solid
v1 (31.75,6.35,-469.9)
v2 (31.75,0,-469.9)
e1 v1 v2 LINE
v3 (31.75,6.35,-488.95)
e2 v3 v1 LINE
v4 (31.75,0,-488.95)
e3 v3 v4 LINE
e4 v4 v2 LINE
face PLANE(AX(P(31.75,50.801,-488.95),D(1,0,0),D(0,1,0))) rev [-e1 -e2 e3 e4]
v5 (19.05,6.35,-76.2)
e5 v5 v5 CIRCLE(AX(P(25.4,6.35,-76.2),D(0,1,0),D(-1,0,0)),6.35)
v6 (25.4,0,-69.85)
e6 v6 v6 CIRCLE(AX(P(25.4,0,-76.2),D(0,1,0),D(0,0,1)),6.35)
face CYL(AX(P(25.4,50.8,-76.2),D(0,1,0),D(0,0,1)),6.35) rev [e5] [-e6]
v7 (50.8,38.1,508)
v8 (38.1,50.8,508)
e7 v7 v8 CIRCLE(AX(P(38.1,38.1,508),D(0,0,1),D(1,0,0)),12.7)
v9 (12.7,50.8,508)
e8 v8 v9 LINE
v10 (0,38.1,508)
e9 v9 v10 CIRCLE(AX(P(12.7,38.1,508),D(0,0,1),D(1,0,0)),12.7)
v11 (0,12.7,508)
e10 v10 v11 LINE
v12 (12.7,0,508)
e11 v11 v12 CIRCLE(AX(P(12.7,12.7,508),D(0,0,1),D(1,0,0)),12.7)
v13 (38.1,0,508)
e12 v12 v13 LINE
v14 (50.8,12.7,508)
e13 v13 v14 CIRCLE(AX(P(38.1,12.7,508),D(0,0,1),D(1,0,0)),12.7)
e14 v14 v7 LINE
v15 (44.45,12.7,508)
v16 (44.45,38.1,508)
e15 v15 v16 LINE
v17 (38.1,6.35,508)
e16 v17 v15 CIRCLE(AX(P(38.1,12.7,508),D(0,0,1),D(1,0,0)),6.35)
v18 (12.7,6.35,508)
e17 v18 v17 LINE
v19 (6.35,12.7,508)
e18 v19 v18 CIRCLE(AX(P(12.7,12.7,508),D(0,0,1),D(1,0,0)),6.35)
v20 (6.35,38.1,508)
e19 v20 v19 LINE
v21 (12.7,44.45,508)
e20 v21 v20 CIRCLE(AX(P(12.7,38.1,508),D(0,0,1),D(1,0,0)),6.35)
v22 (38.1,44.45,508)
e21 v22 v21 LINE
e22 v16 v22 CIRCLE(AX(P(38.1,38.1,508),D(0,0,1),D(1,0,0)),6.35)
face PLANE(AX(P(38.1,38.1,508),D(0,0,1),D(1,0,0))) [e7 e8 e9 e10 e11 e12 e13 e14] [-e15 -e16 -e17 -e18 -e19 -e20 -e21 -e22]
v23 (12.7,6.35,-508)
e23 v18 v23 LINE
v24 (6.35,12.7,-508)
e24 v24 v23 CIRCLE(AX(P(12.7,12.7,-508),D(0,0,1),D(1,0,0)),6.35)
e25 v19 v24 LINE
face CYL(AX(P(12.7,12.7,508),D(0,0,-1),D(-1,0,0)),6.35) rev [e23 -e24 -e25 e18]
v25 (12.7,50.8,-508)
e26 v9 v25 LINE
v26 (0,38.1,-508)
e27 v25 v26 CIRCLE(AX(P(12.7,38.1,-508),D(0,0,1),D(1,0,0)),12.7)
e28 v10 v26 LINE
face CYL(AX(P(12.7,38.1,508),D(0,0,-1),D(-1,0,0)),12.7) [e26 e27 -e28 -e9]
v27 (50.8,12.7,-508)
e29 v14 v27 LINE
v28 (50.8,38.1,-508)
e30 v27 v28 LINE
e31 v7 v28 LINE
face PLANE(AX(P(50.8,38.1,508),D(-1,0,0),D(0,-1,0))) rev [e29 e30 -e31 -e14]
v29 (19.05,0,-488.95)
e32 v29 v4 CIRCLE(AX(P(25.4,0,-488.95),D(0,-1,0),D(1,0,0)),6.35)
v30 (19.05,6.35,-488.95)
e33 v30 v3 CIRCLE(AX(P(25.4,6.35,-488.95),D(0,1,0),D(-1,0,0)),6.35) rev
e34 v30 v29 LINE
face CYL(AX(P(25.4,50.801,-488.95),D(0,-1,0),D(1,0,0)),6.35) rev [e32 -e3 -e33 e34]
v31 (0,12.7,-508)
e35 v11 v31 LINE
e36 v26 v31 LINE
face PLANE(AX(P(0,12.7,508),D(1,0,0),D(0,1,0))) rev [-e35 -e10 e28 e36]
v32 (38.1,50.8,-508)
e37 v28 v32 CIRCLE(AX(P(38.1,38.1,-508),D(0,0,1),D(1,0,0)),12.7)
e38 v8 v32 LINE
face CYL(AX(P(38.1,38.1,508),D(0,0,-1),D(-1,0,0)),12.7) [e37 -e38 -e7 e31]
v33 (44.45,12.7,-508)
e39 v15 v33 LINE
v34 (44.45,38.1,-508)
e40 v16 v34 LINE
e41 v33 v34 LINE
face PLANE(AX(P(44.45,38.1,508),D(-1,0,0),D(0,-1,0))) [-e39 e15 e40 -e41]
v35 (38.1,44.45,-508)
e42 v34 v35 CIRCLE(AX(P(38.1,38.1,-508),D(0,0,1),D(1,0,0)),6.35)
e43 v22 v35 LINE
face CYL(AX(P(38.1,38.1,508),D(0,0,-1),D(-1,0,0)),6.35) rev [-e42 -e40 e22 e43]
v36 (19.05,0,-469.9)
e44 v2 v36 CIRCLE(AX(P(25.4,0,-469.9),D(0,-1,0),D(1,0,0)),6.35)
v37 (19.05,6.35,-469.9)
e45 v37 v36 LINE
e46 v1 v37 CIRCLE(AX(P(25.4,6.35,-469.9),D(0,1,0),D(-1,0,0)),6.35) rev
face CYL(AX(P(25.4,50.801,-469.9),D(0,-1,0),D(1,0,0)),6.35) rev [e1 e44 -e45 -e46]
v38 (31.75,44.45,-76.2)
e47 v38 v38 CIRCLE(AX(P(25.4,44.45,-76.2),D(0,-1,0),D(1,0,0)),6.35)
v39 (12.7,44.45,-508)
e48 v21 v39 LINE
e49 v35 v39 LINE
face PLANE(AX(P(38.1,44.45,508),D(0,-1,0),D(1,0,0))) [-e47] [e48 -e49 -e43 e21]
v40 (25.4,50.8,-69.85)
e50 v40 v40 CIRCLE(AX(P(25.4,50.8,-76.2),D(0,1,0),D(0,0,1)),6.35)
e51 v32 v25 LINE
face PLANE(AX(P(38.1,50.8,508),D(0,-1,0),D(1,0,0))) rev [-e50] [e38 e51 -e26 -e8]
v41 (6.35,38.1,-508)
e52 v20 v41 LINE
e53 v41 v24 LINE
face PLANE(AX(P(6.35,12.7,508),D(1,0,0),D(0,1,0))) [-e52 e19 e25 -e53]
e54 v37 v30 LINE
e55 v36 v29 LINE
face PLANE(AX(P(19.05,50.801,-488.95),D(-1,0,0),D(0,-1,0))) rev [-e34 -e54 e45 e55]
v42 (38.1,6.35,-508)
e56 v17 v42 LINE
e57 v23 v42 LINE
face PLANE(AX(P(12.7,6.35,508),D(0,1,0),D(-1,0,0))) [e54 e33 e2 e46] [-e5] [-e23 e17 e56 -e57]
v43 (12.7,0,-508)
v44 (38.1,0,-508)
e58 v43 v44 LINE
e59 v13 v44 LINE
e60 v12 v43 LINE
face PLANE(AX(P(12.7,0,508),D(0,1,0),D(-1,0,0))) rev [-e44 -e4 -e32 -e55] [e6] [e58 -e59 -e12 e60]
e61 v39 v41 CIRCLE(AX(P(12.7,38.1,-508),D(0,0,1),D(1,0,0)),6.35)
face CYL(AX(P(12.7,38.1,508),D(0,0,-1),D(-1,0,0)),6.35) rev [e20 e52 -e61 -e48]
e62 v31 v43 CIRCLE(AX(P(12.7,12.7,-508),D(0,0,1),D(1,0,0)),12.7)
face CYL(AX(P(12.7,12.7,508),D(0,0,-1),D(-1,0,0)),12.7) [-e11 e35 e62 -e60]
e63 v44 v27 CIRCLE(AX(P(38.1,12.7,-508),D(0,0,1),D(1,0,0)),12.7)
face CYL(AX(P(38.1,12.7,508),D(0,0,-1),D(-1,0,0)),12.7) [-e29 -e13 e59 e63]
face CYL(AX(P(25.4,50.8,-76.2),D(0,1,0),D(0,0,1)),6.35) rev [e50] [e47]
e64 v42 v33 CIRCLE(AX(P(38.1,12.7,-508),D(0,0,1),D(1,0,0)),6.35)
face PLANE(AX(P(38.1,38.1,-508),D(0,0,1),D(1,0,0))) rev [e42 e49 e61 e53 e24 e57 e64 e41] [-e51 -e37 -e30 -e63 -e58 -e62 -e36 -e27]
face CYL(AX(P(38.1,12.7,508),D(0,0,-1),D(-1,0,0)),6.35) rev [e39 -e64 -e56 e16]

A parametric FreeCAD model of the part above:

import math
import FreeCAD as App
import Part
import Sketcher

V = App.Vector
Q = App.Units.Quantity

doc = App.newDocument("Part")
body = doc.addObject("PartDesign::Body", "Body")

# Sketch on XY plane
sketch1 = body.newObject("Sketcher::SketchObject", "Sketch")
sketch1.AttachmentSupport = (doc.getObject("XY_Plane"), [""])
sketch1.MapMode = "FlatFace"
sketch1.addGeometry(Part.LineSegment(V(12.7, 0, 0), V(38.1, 0, 0)), False)
sketch1.addGeometry(Part.ArcOfCircle(Part.Circle(V(38.1, 12.7, 0), V(0, 0, 1), 12.7), math.radians(-90), math.radians(0)), False)
sketch1.addGeometry(Part.LineSegment(V(50.8, 12.7, 0), V(50.8, 38.1, 0)), False)
sketch1.addGeometry(Part.ArcOfCircle(Part.Circle(V(38.1, 38.1, 0), V(0, 0, 1), 12.7), math.radians(0), math.radians(90)), False)
sketch1.addGeometry(Part.LineSegment(V(38.1, 50.8, 0), V(12.7, 50.8, 0)), False)
sketch1.addGeometry(Part.ArcOfCircle(Part.Circle(V(12.7, 38.1, 0), V(0, 0, 1), 12.7), math.radians(90), math.radians(180)), False)
sketch1.addGeometry(Part.LineSegment(V(0, 38.1, 0), V(0, 12.7, 0)), False)
sketch1.addGeometry(Part.ArcOfCircle(Part.Circle(V(12.7, 12.7, 0), V(0, 0, 1), 12.7), math.radians(180), math.radians(270)), False)
sketch1.addGeometry(Part.LineSegment(V(38.1, 6.35, 0), V(12.7, 6.35, 0)), False)
sketch1.addGeometry(Part.ArcOfCircle(Part.Circle(V(12.7, 12.7, 0), V(0, 0, 1), 6.35), math.radians(180), math.radians(270)), False)
sketch1.addGeometry(Part.LineSegment(V(6.35, 12.7, 0), V(6.35, 38.1, 0)), False)
sketch1.addGeometry(Part.ArcOfCircle(Part.Circle(V(12.7, 38.1, 0), V(0, 0, 1), 6.35), math.radians(90), math.radians(180)), False)
sketch1.addGeometry(Part.LineSegment(V(12.7, 44.45, 0), V(38.1, 44.45, 0)), False)
sketch1.addGeometry(Part.ArcOfCircle(Part.Circle(V(38.1, 38.1, 0), V(0, 0, 1), 6.35), math.radians(0), math.radians(90)), False)
sketch1.addGeometry(Part.LineSegment(V(44.45, 38.1, 0), V(44.45, 12.7, 0)), False)
sketch1.addGeometry(Part.ArcOfCircle(Part.Circle(V(38.1, 12.7, 0), V(0, 0, 1), 6.35), math.radians(-90), math.radians(0)), False)
sketch1.addConstraint(Sketcher.Constraint("Tangent", 0, 2, 1, 1))
sketch1.addConstraint(Sketcher.Constraint("Tangent", 1, 2, 2, 1))
sketch1.addConstraint(Sketcher.Constraint("Tangent", 2, 2, 3, 1))
sketch1.addConstraint(Sketcher.Constraint("Tangent", 3, 2, 4, 1))
sketch1.addConstraint(Sketcher.Constraint("Tangent", 4, 2, 5, 1))
sketch1.addConstraint(Sketcher.Constraint("Tangent", 5, 2, 6, 1))
sketch1.addConstraint(Sketcher.Constraint("Tangent", 6, 2, 7, 1))
sketch1.addConstraint(Sketcher.Constraint("Tangent", 7, 2, 0, 1))
sketch1.addConstraint(Sketcher.Constraint("Tangent", 8, 2, 9, 2))
sketch1.addConstraint(Sketcher.Constraint("Tangent", 9, 1, 10, 1))
sketch1.addConstraint(Sketcher.Constraint("Tangent", 10, 2, 11, 2))
sketch1.addConstraint(Sketcher.Constraint("Tangent", 11, 1, 12, 1))
sketch1.addConstraint(Sketcher.Constraint("Tangent", 12, 2, 13, 2))
sketch1.addConstraint(Sketcher.Constraint("Tangent", 13, 1, 14, 1))
sketch1.addConstraint(Sketcher.Constraint("Tangent", 14, 2, 15, 2))
sketch1.addConstraint(Sketcher.Constraint("Tangent", 15, 1, 8, 1))
sketch1.addConstraint(Sketcher.Constraint("Horizontal", 0))
sketch1.addConstraint(Sketcher.Constraint("Vertical", 2))
sketch1.addConstraint(Sketcher.Constraint("Horizontal", 4))
sketch1.addConstraint(Sketcher.Constraint("Vertical", 6))
sketch1.addConstraint(Sketcher.Constraint("Horizontal", 8))
sketch1.addConstraint(Sketcher.Constraint("Vertical", 10))
sketch1.addConstraint(Sketcher.Constraint("Horizontal", 12))
sketch1.addConstraint(Sketcher.Constraint("Vertical", 14))
sketch1.addConstraint(Sketcher.Constraint("Coincident", 9, 3, 7, 3))
sketch1.addConstraint(Sketcher.Constraint("Coincident", 11, 3, 5, 3))
sketch1.addConstraint(Sketcher.Constraint("Coincident", 13, 3, 3, 3))
sketch1.addConstraint(Sketcher.Constraint("Equal", 1, 3))
sketch1.addConstraint(Sketcher.Constraint("Equal", 3, 5))
sketch1.addConstraint(Sketcher.Constraint("Equal", 5, 7))
sketch1.addConstraint(Sketcher.Constraint("Equal", 13, 15))
sketch1.addConstraint(Sketcher.Constraint("PointOnObject", 0, 2, -1))
sketch1.addConstraint(Sketcher.Constraint("PointOnObject", 5, 2, -2))
sketch1.addConstraint(Sketcher.Constraint("Equal", 12, 2))
sketch1.addConstraint(Sketcher.Constraint("Radius", 1, Q("0.5 in")))
sketch1.addConstraint(Sketcher.Constraint("DistanceX", 0, 1, 0, 2, Q("1 in")))
sketch1.addConstraint(Sketcher.Constraint("Radius", 9, Q("0.25 in")))
pad1 = body.newObject("PartDesign::Pad", "Pad")
pad1.Profile = sketch1
pad1.Length = Q("40 in")
pad1.Midplane = True

# Sketch on XZ plane
sketch2 = body.newObject("Sketcher::SketchObject", "Sketch001")
sketch2.AttachmentSupport = (doc.getObject("XZ_Plane"), [""])
sketch2.MapMode = "FlatFace"
sketch2.AttachmentOffset = App.Placement(V(0, 0, -2 * 25.4), App.Rotation())
sketch2.addGeometry(Part.Circle(V(25.4, -76.2, 0), V(0, 0, 1), 6.35), False)
sketch2.addConstraint(Sketcher.Constraint("Diameter", 0, Q("0.5 in")))
sketch2.addConstraint(Sketcher.Constraint("DistanceX", -1, 1, 0, 3, Q("1 in")))
sketch2.addConstraint(Sketcher.Constraint("DistanceY", 0, 3, -1, 1, Q("3 in")))
doc.recompute()
hole = body.newObject("PartDesign::Hole", "Hole")
hole.Profile = sketch2
hole.ThreadType = "None"
hole.Diameter = Q("0.5 in")
hole.DepthType = "ThroughAll"
hole.Reversed = True

# Sketch on XZ plane
sketch3 = body.newObject("Sketcher::SketchObject", "Sketch002")
sketch3.AttachmentSupport = (doc.getObject("XZ_Plane"), [""])
sketch3.MapMode = "FlatFace"
sketch3.addGeometry(Part.LineSegment(V(19.05, -469.9, 0), V(19.05, -488.95, 0)), False)
sketch3.addGeometry(Part.ArcOfCircle(Part.Circle(V(25.4, -488.95, 0), V(0, 0, 1), 6.35), math.radians(180), math.radians(360)), False)
sketch3.addGeometry(Part.LineSegment(V(31.75, -488.95, 0), V(31.75, -469.9, 0)), False)
sketch3.addGeometry(Part.ArcOfCircle(Part.Circle(V(25.4, -469.9, 0), V(0, 0, 1), 6.35), math.radians(0), math.radians(180)), False)
sketch3.addConstraint(Sketcher.Constraint("Tangent", 0, 2, 1, 1))
sketch3.addConstraint(Sketcher.Constraint("Tangent", 1, 2, 2, 1))
sketch3.addConstraint(Sketcher.Constraint("Tangent", 2, 2, 3, 1))
sketch3.addConstraint(Sketcher.Constraint("Tangent", 3, 2, 0, 1))
sketch3.addConstraint(Sketcher.Constraint("Vertical", 0))
sketch3.addConstraint(Sketcher.Constraint("Vertical", 2))
sketch3.addConstraint(Sketcher.Constraint("Radius", 1, Q("0.25 in")))
sketch3.addConstraint(Sketcher.Constraint("DistanceX", -1, 1, 1, 3, Q("1 in")))
sketch3.addConstraint(Sketcher.Constraint("DistanceY", 0, 2, 0, 1, Q("0.75 in")))
sketch3.addConstraint(Sketcher.Constraint("DistanceY", 3, 3, -1, 1, Q("18.5 in")))
pocket1 = body.newObject("PartDesign::Pocket", "Pocket")
pocket1.Profile = sketch3
pocket1.Type = "UpToFirst"

doc.recompute()
